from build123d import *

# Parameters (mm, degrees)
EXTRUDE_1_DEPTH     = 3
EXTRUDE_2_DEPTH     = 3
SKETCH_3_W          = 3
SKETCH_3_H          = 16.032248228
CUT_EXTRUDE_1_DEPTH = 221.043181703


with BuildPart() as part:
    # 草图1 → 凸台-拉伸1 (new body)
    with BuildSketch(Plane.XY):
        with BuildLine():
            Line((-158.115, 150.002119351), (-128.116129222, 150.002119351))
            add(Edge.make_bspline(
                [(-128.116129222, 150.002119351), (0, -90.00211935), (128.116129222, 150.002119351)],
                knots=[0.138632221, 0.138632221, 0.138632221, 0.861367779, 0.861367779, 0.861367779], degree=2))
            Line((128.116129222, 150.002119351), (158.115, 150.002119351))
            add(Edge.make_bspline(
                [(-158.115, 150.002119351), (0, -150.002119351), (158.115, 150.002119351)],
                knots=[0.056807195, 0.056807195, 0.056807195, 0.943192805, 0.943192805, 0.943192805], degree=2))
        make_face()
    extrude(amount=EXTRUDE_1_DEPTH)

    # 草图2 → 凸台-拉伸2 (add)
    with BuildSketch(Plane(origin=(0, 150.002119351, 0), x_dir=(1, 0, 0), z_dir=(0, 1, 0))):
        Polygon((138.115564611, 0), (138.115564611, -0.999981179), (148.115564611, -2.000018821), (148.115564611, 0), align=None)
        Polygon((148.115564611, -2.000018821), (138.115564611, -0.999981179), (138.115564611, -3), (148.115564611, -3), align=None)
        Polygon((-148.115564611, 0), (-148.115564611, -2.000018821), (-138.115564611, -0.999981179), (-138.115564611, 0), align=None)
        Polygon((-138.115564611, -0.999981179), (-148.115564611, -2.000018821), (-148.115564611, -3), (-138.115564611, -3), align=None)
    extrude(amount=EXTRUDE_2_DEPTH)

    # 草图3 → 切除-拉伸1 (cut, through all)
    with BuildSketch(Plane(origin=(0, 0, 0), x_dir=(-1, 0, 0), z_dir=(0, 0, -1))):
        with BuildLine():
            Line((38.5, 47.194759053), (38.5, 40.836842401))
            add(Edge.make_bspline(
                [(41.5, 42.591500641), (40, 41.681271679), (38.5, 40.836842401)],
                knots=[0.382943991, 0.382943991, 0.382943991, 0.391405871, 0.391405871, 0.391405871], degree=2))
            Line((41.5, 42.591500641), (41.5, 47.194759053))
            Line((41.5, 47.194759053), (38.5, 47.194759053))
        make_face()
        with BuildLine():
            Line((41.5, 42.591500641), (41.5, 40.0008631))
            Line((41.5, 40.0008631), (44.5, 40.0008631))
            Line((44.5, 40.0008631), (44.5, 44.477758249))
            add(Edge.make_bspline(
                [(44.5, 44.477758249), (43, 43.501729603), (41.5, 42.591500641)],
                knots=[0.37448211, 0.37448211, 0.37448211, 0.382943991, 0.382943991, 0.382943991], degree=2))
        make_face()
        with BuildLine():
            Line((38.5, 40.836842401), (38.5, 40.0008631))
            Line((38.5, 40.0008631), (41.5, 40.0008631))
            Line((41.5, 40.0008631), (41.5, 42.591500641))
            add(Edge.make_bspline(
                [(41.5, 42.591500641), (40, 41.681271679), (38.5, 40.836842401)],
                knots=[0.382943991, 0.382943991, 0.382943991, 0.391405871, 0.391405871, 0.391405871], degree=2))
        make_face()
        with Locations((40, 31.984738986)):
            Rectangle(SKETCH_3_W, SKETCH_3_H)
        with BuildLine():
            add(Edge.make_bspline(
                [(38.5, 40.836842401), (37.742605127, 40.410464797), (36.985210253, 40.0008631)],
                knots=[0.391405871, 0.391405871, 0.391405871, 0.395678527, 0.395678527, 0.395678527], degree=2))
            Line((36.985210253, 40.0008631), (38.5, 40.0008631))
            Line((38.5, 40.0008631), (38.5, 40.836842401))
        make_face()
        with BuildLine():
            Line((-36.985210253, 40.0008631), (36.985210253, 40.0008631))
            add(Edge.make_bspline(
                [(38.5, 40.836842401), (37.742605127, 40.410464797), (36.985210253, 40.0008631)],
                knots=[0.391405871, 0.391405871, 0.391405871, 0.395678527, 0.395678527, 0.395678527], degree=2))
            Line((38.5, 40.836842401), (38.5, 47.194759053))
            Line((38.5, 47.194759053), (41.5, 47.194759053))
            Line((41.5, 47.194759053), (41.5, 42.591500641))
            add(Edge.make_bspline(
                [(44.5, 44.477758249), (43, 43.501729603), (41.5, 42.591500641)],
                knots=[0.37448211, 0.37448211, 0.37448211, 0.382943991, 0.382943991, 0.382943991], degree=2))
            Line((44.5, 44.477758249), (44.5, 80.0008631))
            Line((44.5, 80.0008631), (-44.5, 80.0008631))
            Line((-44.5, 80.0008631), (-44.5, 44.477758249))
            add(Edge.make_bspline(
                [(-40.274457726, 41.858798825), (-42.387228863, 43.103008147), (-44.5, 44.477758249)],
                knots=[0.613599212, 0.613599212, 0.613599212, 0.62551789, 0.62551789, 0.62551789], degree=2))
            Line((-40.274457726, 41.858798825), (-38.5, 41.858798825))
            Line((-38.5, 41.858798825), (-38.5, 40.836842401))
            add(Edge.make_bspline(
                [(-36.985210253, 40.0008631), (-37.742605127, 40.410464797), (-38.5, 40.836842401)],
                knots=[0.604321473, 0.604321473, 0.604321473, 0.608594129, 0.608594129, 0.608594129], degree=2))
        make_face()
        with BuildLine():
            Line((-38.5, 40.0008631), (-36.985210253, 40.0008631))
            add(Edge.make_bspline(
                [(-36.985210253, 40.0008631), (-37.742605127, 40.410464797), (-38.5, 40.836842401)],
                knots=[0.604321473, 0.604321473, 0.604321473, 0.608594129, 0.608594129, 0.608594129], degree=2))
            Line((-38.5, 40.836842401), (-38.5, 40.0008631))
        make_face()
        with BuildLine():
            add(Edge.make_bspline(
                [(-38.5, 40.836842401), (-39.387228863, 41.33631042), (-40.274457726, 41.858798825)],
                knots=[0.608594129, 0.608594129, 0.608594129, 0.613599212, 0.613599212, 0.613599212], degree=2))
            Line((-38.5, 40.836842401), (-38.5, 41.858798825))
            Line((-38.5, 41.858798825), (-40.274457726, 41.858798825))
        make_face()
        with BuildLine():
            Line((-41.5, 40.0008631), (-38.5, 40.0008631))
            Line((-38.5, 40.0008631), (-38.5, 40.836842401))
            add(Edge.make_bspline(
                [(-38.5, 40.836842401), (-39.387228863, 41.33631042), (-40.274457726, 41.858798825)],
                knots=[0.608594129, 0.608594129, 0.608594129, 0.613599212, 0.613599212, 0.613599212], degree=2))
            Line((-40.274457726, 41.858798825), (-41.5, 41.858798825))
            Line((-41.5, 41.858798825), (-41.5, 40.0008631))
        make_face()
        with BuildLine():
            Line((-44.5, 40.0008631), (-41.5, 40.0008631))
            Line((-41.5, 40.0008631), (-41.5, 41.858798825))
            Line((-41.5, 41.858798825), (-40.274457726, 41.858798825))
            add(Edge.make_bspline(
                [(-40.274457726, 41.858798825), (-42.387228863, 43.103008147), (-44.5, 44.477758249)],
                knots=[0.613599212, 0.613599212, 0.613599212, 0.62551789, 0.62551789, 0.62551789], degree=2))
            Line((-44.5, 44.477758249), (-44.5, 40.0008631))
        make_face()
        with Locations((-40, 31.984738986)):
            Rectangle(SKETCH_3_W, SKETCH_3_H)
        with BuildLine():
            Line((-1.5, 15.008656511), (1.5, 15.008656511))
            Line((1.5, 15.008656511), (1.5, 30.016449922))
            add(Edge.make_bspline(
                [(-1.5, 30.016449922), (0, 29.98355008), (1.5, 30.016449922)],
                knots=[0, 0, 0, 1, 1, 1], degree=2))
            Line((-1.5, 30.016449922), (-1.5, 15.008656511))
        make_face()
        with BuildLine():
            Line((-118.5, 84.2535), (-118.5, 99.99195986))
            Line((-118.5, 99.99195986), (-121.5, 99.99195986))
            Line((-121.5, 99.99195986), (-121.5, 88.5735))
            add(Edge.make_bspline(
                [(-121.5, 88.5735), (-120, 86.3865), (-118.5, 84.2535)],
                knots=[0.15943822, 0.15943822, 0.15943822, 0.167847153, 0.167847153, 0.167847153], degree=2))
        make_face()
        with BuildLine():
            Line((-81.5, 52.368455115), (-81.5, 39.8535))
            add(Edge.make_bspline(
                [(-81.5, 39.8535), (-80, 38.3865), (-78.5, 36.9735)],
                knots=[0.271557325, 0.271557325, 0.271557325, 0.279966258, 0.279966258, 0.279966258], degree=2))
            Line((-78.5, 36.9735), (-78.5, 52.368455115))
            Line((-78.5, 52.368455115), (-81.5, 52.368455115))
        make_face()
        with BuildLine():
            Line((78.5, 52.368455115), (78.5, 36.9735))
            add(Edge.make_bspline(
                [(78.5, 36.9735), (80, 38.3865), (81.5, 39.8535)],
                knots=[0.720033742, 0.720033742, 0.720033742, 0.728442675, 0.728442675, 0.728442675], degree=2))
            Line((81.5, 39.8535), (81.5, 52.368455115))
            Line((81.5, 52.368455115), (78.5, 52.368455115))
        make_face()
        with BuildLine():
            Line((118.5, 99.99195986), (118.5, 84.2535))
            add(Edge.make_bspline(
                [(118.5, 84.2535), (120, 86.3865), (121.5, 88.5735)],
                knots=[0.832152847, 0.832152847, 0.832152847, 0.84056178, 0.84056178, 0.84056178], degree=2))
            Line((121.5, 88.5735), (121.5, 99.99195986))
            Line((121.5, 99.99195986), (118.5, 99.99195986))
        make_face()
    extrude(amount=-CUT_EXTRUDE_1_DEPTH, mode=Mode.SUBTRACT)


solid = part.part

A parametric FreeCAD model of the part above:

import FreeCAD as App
import Part
import Sketcher

doc = App.newDocument("Part")
body = doc.addObject("PartDesign::Body", "Body")

# Sketch on XY plane
sketch1 = body.newObject("Sketcher::SketchObject", "Sketch")
sketch1.AttachmentSupport = (doc.getObject("XY_Plane"), [""])
sketch1.MapMode = "FlatFace"
sketch1.addGeometry([
    Part.LineSegment(App.Vector(-128.116129, 150.002119, 0), App.Vector(-158.115, 150.002119, 0)),
    Part.BSplineCurve([App.Vector(-158.115, 150.002119, 0), App.Vector(0, -150.002119, 0), App.Vector(158.115, 150.002119, 0)], [3, 3], [0.056807195, 0.943192805], False, 2, [1, 1, 1], False),
    Part.LineSegment(App.Vector(158.115, 150.002119, 0), App.Vector(128.116129, 150.002119, 0)),
    Part.BSplineCurve([App.Vector(-128.116129, 150.002119, 0), App.Vector(0, -90.002119, 0), App.Vector(128.116129, 150.002119, 0)], [3, 3], [0.138632221, 0.861367779], False, 2, [1, 1, 1], False),
], False)
sketch1.addConstraint([
    Sketcher.Constraint("Block", 1),
    Sketcher.Constraint("Block", 3),
    Sketcher.Constraint("Coincident", 0, 2, 1, 1),
    Sketcher.Constraint("Coincident", 1, 2, 2, 1),
    Sketcher.Constraint("Coincident", 2, 2, 3, 2),
    Sketcher.Constraint("Coincident", 3, 1, 0, 1),
])
pad1 = body.newObject("PartDesign::Pad", "Pad")
pad1.Profile = sketch1
pad1.Length = 3

# Sketch on XZ plane
sketch2 = body.newObject("Sketcher::SketchObject", "Sketch001")
sketch2.AttachmentSupport = (doc.getObject("XZ_Plane"), [""])
sketch2.MapMode = "FlatFace"
sketch2.AttachmentOffset = App.Placement(App.Vector(0, 0, -150.002119), App.Rotation())
sketch2.addGeometry([
    Part.LineSegment(App.Vector(138.1, 0, 0), App.Vector(138.1, 3, 0)),  # 0
    Part.LineSegment(App.Vector(138.1, 3, 0), App.Vector(148.1, 3, 0)),  # 1
    Part.LineSegment(App.Vector(148.1, 3, 0), App.Vector(148.1, 0, 0)),  # 2
    Part.LineSegment(App.Vector(148.1, 0, 0), App.Vector(138.1, 0, 0)),  # 3
    Part.LineSegment(App.Vector(-148.1, 0, 0), App.Vector(-148.1, 3, 0)),  # 4
    Part.LineSegment(App.Vector(-148.1, 3, 0), App.Vector(-138.1, 3, 0)),  # 5
    Part.LineSegment(App.Vector(-138.1, 3, 0), App.Vector(-138.1, 0, 0)),  # 6
    Part.LineSegment(App.Vector(-138.1, 0, 0), App.Vector(-148.1, 0, 0)),  # 7
], False)
sketch2.addConstraint([
    Sketcher.Constraint("Coincident", 0, 2, 1, 1),
    Sketcher.Constraint("Coincident", 1, 2, 2, 1),
    Sketcher.Constraint("Coincident", 2, 2, 3, 1),
    Sketcher.Constraint("Coincident", 3, 2, 0, 1),
    Sketcher.Constraint("Coincident", 4, 2, 5, 1),
    Sketcher.Constraint("Coincident", 5, 2, 6, 1),
    Sketcher.Constraint("Coincident", 6, 2, 7, 1),
    Sketcher.Constraint("Coincident", 7, 2, 4, 1),
    Sketcher.Constraint("Vertical", 0),
    Sketcher.Constraint("Horizontal", 1),
    Sketcher.Constraint("Vertical", 2),
    Sketcher.Constraint("Horizontal", 3),
    Sketcher.Constraint("Vertical", 4),
    Sketcher.Constraint("Horizontal", 5),
    Sketcher.Constraint("Vertical", 6),
    Sketcher.Constraint("Horizontal", 7),
    Sketcher.Constraint("Symmetric", 3, 2, 6, 2, -1, 1),
    Sketcher.Constraint("Symmetric", 1, 2, 4, 2, -2),
    Sketcher.Constraint("PointOnObject", 2, 2, -1),
    Sketcher.Constraint("DistanceX", 1, 1, 1, 2, 10.0),
    Sketcher.Constraint("DistanceY", 0, 1, 0, 2, 3.0),
    Sketcher.Constraint("DistanceX", 4, 2, 0, 2, 286.231129),
])
pad2 = body.newObject("PartDesign::Pad", "Pad001")
pad2.Profile = sketch2
pad2.Length = 3
pad2.Reversed = True

# Sketch on XY plane
sketch3 = body.newObject("Sketcher::SketchObject", "Sketch002")
sketch3.AttachmentSupport = (doc.getObject("XY_Plane"), [""])
sketch3.MapMode = "FlatFace"
sketch3.addGeometry([
    Part.LineSegment(App.Vector(-38.5, 40.000863, 0), App.Vector(-38.5, 23.968615, 0)),  # 0
    Part.LineSegment(App.Vector(-38.5, 23.968615, 0), App.Vector(-41.5, 23.968615, 0)),  # 1
    Part.LineSegment(App.Vector(-41.5, 23.968615, 0), App.Vector(-41.5, 40.000863, 0)),  # 2
    Part.LineSegment(App.Vector(-41.5, 40.000863, 0), App.Vector(-44.5, 40.000863, 0)),  # 3
    Part.LineSegment(App.Vector(-44.5, 40.000863, 0), App.Vector(-44.5, 80.000863, 0)),  # 4
    Part.LineSegment(App.Vector(-44.5, 80.000863, 0), App.Vector(44.5, 80.000863, 0)),  # 5
    Part.LineSegment(App.Vector(44.5, 80.000863, 0), App.Vector(44.5, 40.000863, 0)),  # 6
    Part.LineSegment(App.Vector(44.5, 40.000863, 0), App.Vector(41.5, 40.000863, 0)),  # 7
    Part.LineSegment(App.Vector(41.5, 40.000863, 0), App.Vector(41.5, 23.968615, 0)),  # 8
    Part.LineSegment(App.Vector(41.5, 23.968615, 0), App.Vector(38.5, 23.968615, 0)),  # 9
    Part.LineSegment(App.Vector(38.5, 23.968615, 0), App.Vector(38.5, 40.000863, 0)),  # 10
    Part.LineSegment(App.Vector(38.5, 40.000863, 0), App.Vector(-38.5, 40.000863, 0)),  # 11
    Part.LineSegment(App.Vector(1.5, 15.008657, 0), App.Vector(-1.5, 15.008657, 0)),  # 12
    Part.LineSegment(App.Vector(-1.5, 15.008657, 0), App.Vector(-1.5, 30.01645, 0)),  # 13
    Part.BSplineCurve([App.Vector(1.5, 30.01645, 0), App.Vector(0, 29.98355, 0), App.Vector(-1.5, 30.01645, 0)], [3, 3], [0, 1], False, 2, [1, 1, 1], False),  # 14
    Part.LineSegment(App.Vector(1.5, 30.01645, 0), App.Vector(1.5, 15.008657, 0)),  # 15
    Part.LineSegment(App.Vector(118.5, 84.2535, 0), App.Vector(118.5, 99.99196, 0)),  # 16
    Part.LineSegment(App.Vector(118.5, 99.99196, 0), App.Vector(121.5, 99.99196, 0)),  # 17
    Part.LineSegment(App.Vector(121.5, 99.99196, 0), App.Vector(121.5, 88.5735, 0)),  # 18
    Part.BSplineCurve([App.Vector(121.5, 88.5735, 0), App.Vector(120, 86.3865, 0), App.Vector(118.5, 84.2535, 0)], [3, 3], [0.15943822, 0.167847153], False, 2, [1, 1, 1], False),  # 19
    Part.LineSegment(App.Vector(81.5, 52.368455, 0), App.Vector(81.5, 39.8535, 0)),  # 20
    Part.BSplineCurve([App.Vector(81.5, 39.8535, 0), App.Vector(80, 38.3865, 0), App.Vector(78.5, 36.9735, 0)], [3, 3], [0.271557325, 0.279966258], False, 2, [1, 1, 1], False),  # 21
    Part.LineSegment(App.Vector(78.5, 36.9735, 0), App.Vector(78.5, 52.368455, 0)),  # 22
    Part.LineSegment(App.Vector(78.5, 52.368455, 0), App.Vector(81.5, 52.368455, 0)),  # 23
    Part.LineSegment(App.Vector(-78.5, 52.368455, 0), App.Vector(-78.5, 36.9735, 0)),  # 24
    Part.BSplineCurve([App.Vector(-78.5, 36.9735, 0), App.Vector(-80, 38.3865, 0), App.Vector(-81.5, 39.8535, 0)], [3, 3], [0.720033742, 0.728442675], False, 2, [1, 1, 1], False),  # 25
    Part.LineSegment(App.Vector(-81.5, 39.8535, 0), App.Vector(-81.5, 52.368455, 0)),  # 26
    Part.LineSegment(App.Vector(-81.5, 52.368455, 0), App.Vector(-78.5, 52.368455, 0)),  # 27
    Part.LineSegment(App.Vector(-118.5, 99.99196, 0), App.Vector(-118.5, 84.2535, 0)),  # 28
    Part.BSplineCurve([App.Vector(-118.5, 84.2535, 0), App.Vector(-120, 86.3865, 0), App.Vector(-121.5, 88.5735, 0)], [3, 3], [0.832152847, 0.84056178], False, 2, [1, 1, 1], False),  # 29
    Part.LineSegment(App.Vector(-121.5, 88.5735, 0), App.Vector(-121.5, 99.99196, 0)),  # 30
    Part.LineSegment(App.Vector(-121.5, 99.99196, 0), App.Vector(-118.5, 99.99196, 0)),  # 31
], False)
sketch3.addConstraint([
    Sketcher.Constraint("Block", 14),
    Sketcher.Constraint("Block", 19),
    Sketcher.Constraint("Block", 21),
    Sketcher.Constraint("Block", 25),
    Sketcher.Constraint("Block", 29),
    Sketcher.Constraint("Coincident", 0, 2, 1, 1),
    Sketcher.Constraint("Coincident", 1, 2, 2, 1),
    Sketcher.Constraint("Coincident", 2, 2, 3, 1),
    Sketcher.Constraint("Coincident", 3, 2, 4, 1),
    Sketcher.Constraint("Coincident", 4, 2, 5, 1),
    Sketcher.Constraint("Coincident", 5, 2, 6, 1),
    Sketcher.Constraint("Coincident", 6, 2, 7, 1),
    Sketcher.Constraint("Coincident", 7, 2, 8, 1),
    Sketcher.Constraint("Coincident", 8, 2, 9, 1),
    Sketcher.Constraint("Coincident", 9, 2, 10, 1),
    Sketcher.Constraint("Coincident", 10, 2, 11, 1),
    Sketcher.Constraint("Coincident", 11, 2, 0, 1),
    Sketcher.Constraint("Coincident", 12, 2, 13, 1),
    Sketcher.Constraint("Coincident", 13, 2, 14, 2),
    Sketcher.Constraint("Coincident", 14, 1, 15, 1),
    Sketcher.Constraint("Coincident", 15, 2, 12, 1),
    Sketcher.Constraint("Coincident", 16, 2, 17, 1),
    Sketcher.Constraint("Coincident", 17, 2, 18, 1),
    Sketcher.Constraint("Coincident", 18, 2, 19, 1),
    Sketcher.Constraint("Coincident", 19, 2, 16, 1),
    Sketcher.Constraint("Coincident", 20, 2, 21, 1),
    Sketcher.Constraint("Coincident", 21, 2, 22, 1),
    Sketcher.Constraint("Coincident", 22, 2, 23, 1),
    Sketcher.Constraint("Coincident", 23, 2, 20, 1),
    Sketcher.Constraint("Coincident", 24, 2, 25, 1),
    Sketcher.Constraint("Coincident", 25, 2, 26, 1),
    Sketcher.Constraint("Coincident", 26, 2, 27, 1),
    Sketcher.Constraint("Coincident", 27, 2, 24, 1),
    Sketcher.Constraint("Coincident", 28, 2, 29, 1),
    Sketcher.Constraint("Coincident", 29, 2, 30, 1),
    Sketcher.Constraint("Coincident", 30, 2, 31, 1),
    Sketcher.Constraint("Coincident", 31, 2, 28, 1),
    Sketcher.Constraint("Vertical", 0),
    Sketcher.Constraint("Horizontal", 1),
    Sketcher.Constraint("Vertical", 2),
    Sketcher.Constraint("Horizontal", 3),
    Sketcher.Constraint("Vertical", 4),
    Sketcher.Constraint("Horizontal", 5),
    Sketcher.Constraint("Vertical", 6),
    Sketcher.Constraint("Horizontal", 7),
    Sketcher.Constraint("Vertical", 8),
    Sketcher.Constraint("Horizontal", 9),
    Sketcher.Constraint("Vertical", 10),
    Sketcher.Constraint("Horizontal", 11),
    Sketcher.Constraint("Horizontal", 12),
    Sketcher.Constraint("Vertical", 13),
    Sketcher.Constraint("Vertical", 15),
    Sketcher.Constraint("Vertical", 16),
    Sketcher.Constraint("Horizontal", 17),
    Sketcher.Constraint("Vertical", 18),
    Sketcher.Constraint("Vertical", 20),
    Sketcher.Constraint("Vertical", 22),
    Sketcher.Constraint("Horizontal", 23),
    Sketcher.Constraint("Vertical", 24),
    Sketcher.Constraint("Vertical", 26),
    Sketcher.Constraint("Horizontal", 27),
    Sketcher.Constraint("Vertical", 28),
    Sketcher.Constraint("Vertical", 30),
    Sketcher.Constraint("Horizontal", 31),
    Sketcher.Constraint("Symmetric", 3, 2, 6, 2, -2),
    Sketcher.Constraint("Symmetric", 1, 2, 8, 2, -2),
    Sketcher.Constraint("Horizontal", 7, 2, 10, 2),
    Sketcher.Constraint("Horizontal", 23, 2, 26, 2),
    Sketcher.Constraint("Horizontal", 17, 2, 30, 2),
    Sketcher.Constraint("Equal", 1, 3),
    Sketcher.Constraint("Equal", 7, 9),
    Sketcher.Constraint("Equal", 9, 12),
    Sketcher.Constraint("DistanceX", 5, 1, 5, 2, 89.0),
    Sketcher.Constraint("DistanceY", 4, 1, 4, 2, 40.0),
    Sketcher.Constraint("DistanceY", 0, 2, 0, 1, 16.032248),
    Sketcher.Constraint("DistanceY", 16, 1, 16, 2, 15.73846),
    Sketcher.Constraint("DistanceY", 13, 1, 13, 2, 15.007793),
    Sketcher.Constraint("DistanceY", 20, 2, 20, 1, 12.514955),
    Sketcher.Constraint("DistanceY", 12, 2, 0, 2, 8.959958),
])
pocket1 = body.newObject("PartDesign::Pocket", "Pocket")
pocket1.Profile = sketch3
pocket1.Type = "ThroughAll"
pocket1.Reversed = True

doc.recompute()
